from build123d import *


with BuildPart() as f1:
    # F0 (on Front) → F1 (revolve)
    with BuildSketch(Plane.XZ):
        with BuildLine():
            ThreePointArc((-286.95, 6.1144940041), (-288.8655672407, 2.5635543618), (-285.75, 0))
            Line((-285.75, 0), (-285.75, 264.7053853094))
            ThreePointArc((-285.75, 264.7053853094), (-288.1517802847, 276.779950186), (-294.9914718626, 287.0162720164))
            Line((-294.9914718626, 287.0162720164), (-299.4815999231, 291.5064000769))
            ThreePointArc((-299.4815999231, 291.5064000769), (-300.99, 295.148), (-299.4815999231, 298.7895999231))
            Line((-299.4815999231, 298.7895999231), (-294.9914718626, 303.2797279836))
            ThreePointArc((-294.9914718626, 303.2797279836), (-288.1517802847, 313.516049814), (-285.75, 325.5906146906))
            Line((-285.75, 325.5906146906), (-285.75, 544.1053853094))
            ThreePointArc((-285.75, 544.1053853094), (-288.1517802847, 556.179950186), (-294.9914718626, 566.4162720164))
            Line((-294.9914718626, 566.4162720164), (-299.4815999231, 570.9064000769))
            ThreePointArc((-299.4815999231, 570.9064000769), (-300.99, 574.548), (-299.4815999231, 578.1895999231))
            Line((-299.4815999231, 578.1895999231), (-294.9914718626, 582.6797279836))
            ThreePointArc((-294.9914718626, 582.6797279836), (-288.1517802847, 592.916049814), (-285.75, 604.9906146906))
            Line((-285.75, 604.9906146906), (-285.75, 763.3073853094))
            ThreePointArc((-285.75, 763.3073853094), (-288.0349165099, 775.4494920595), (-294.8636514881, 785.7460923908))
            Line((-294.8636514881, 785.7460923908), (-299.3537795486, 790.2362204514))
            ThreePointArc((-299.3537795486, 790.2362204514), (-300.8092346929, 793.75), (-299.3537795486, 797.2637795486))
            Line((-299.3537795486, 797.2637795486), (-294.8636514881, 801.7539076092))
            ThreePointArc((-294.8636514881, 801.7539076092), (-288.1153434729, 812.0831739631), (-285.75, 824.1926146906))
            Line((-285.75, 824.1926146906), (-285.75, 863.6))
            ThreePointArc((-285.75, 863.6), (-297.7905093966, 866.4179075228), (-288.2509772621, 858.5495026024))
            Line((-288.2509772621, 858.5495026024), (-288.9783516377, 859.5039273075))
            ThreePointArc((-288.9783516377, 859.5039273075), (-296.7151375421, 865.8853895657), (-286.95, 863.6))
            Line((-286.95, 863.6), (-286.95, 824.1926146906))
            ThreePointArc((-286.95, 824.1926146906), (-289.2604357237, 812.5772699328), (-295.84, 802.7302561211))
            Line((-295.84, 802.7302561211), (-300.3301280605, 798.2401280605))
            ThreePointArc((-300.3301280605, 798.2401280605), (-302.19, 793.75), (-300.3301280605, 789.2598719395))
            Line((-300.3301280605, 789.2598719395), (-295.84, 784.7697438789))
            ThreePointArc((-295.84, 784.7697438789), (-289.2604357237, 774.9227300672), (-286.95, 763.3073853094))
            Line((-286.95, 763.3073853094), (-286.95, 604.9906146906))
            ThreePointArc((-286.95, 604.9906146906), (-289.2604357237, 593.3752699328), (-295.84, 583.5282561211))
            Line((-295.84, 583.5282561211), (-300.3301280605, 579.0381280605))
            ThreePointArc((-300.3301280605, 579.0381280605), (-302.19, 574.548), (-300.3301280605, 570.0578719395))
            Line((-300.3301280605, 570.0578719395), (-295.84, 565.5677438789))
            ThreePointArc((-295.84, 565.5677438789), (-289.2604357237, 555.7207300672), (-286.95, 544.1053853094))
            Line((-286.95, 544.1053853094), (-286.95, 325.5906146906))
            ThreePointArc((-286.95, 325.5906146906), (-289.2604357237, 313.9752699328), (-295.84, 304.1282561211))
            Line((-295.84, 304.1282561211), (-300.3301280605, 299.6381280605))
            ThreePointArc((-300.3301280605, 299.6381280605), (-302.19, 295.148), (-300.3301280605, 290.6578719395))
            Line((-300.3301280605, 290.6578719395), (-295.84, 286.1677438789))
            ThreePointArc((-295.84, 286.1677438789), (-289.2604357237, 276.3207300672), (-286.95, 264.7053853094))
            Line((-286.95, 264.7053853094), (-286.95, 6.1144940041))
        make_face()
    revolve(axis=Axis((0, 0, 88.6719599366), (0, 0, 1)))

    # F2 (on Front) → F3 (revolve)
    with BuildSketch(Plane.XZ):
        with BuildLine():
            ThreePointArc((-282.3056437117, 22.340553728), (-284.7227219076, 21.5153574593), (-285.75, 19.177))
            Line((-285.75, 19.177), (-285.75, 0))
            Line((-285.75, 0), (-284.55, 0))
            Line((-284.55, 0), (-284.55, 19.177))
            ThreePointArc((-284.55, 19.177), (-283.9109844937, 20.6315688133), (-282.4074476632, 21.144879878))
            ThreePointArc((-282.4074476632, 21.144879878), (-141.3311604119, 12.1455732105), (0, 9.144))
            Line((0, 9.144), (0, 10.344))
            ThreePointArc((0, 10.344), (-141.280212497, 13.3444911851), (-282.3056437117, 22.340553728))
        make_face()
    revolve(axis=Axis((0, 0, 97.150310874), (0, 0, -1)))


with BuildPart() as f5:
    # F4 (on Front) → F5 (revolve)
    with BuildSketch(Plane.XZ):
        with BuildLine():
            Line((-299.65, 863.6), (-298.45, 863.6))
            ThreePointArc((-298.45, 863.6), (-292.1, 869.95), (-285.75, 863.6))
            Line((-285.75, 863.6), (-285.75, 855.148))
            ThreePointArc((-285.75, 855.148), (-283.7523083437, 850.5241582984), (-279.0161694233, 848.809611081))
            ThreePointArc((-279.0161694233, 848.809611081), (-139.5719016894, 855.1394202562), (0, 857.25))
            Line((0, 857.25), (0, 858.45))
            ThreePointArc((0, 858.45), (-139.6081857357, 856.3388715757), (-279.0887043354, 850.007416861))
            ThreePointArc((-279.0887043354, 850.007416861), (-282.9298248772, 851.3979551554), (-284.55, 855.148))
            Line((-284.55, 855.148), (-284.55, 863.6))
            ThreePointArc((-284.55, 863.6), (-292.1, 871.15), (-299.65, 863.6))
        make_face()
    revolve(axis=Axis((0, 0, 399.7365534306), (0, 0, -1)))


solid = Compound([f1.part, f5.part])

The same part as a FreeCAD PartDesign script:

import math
import FreeCAD as App
import Part
import Sketcher
from FreeCAD import Vector
Q = App.Units.Quantity

doc = App.newDocument("Part")
body = doc.addObject("PartDesign::Body", "Body")

# Sketch on XZ plane
sketch1 = body.newObject("Sketcher::SketchObject", "Sketch")
sketch1.AttachmentSupport = (doc.getObject("XZ_Plane"), [""])
sketch1.MapMode = "FlatFace"
sketch1.addGeometry([
    Part.ArcOfCircle(Part.Circle(Vector(-285.75, 3.175, 0), Vector(0, 0, 1), 3.175), math.radians(112.206929), math.radians(270)),  # 0
    Part.LineSegment(Vector(-285.75, 0, 0), Vector(-285.75, 264.705385, 0)),  # 1
    Part.ArcOfCircle(Part.Circle(Vector(-317.302359, 264.705385, 0), Vector(0, 0, 1), 31.552359), math.radians(0), math.radians(45)),  # 2
    Part.LineSegment(Vector(-294.991472, 287.016272, 0), Vector(-299.4816, 291.5064, 0)),  # 3
    Part.ArcOfCircle(Part.Circle(Vector(-295.84, 295.148, 0), Vector(0, 0, 1), 5.15), math.radians(135), math.radians(225)),  # 4
    Part.LineSegment(Vector(-299.4816, 298.7896, 0), Vector(-294.991472, 303.279728, 0)),  # 5
    Part.ArcOfCircle(Part.Circle(Vector(-317.302359, 325.590615, 0), Vector(0, 0, 1), 31.552359), math.radians(-45), math.radians(0)),  # 6
    Part.LineSegment(Vector(-285.75, 325.590615, 0), Vector(-285.75, 544.105385, 0)),  # 7
    Part.ArcOfCircle(Part.Circle(Vector(-317.302359, 544.105385, 0), Vector(0, 0, 1), 31.552359), math.radians(0), math.radians(45)),  # 8
    Part.LineSegment(Vector(-294.991472, 566.416272, 0), Vector(-299.4816, 570.9064, 0)),  # 9
    Part.ArcOfCircle(Part.Circle(Vector(-295.84, 574.548, 0), Vector(0, 0, 1), 5.15), math.radians(135), math.radians(225)),  # 10
    Part.LineSegment(Vector(-299.4816, 578.1896, 0), Vector(-294.991472, 582.679728, 0)),  # 11
    Part.ArcOfCircle(Part.Circle(Vector(-317.302359, 604.990615, 0), Vector(0, 0, 1), 31.552359), math.radians(-45), math.radians(0)),  # 12
    Part.LineSegment(Vector(-285.75, 604.990615, 0), Vector(-285.75, 763.307385, 0)),  # 13
    Part.ArcOfCircle(Part.Circle(Vector(-316.873099, 763.736645, 0), Vector(0, 0, 1), 31.126059), math.radians(-0.790192), math.radians(45)),  # 14
    Part.LineSegment(Vector(-294.863651, 785.746092, 0), Vector(-299.35378, 790.23622, 0)),  # 15
    Part.ArcOfCircle(Part.Circle(Vector(-295.84, 793.75, 0), Vector(0, 0, 1), 4.969235), math.radians(135), math.radians(225)),  # 16
    Part.LineSegment(Vector(-299.35378, 797.26378, 0), Vector(-294.863651, 801.753908, 0)),  # 17
    Part.ArcOfCircle(Part.Circle(Vector(-317.929979, 824.192615, 0), Vector(0, 0, 1), 32.179979), math.radians(-44.209808), math.radians(0)),  # 18
    Part.LineSegment(Vector(-285.75, 824.192615, 0), Vector(-285.75, 863.6, 0)),  # 19
    Part.ArcOfCircle(Part.Circle(Vector(-292.1, 863.6, 0), Vector(0, 0, 1), 6.35), math.radians(0), math.radians(307.311303)),  # 20
    Part.LineSegment(Vector(-288.250977, 858.549503, 0), Vector(-288.978352, 859.503927, 0)),  # 21
    Part.ArcOfCircle(Part.Circle(Vector(-292.1, 863.6, 0), Vector(0, 0, 1), 5.15), math.radians(0), math.radians(307.311303)),  # 22
    Part.LineSegment(Vector(-286.95, 863.6, 0), Vector(-286.95, 824.192615, 0)),  # 23
    Part.ArcOfCircle(Part.Circle(Vector(-317.302359, 824.192615, 0), Vector(0, 0, 1), 30.352359), math.radians(-45), math.radians(0)),  # 24
    Part.LineSegment(Vector(-295.84, 802.730256, 0), Vector(-300.330128, 798.240128, 0)),  # 25
    Part.ArcOfCircle(Part.Circle(Vector(-295.84, 793.75, 0), Vector(0, 0, 1), 6.35), math.radians(135), math.radians(225)),  # 26
    Part.LineSegment(Vector(-300.330128, 789.259872, 0), Vector(-295.84, 784.769744, 0)),  # 27
    Part.ArcOfCircle(Part.Circle(Vector(-317.302359, 763.307385, 0), Vector(0, 0, 1), 30.352359), math.radians(0), math.radians(45)),  # 28
    Part.LineSegment(Vector(-286.95, 763.307385, 0), Vector(-286.95, 604.990615, 0)),  # 29
    Part.ArcOfCircle(Part.Circle(Vector(-317.302359, 604.990615, 0), Vector(0, 0, 1), 30.352359), math.radians(-45), math.radians(0)),  # 30
    Part.LineSegment(Vector(-295.84, 583.528256, 0), Vector(-300.330128, 579.038128, 0)),  # 31
    Part.ArcOfCircle(Part.Circle(Vector(-295.84, 574.548, 0), Vector(0, 0, 1), 6.35), math.radians(135), math.radians(225)),  # 32
    Part.LineSegment(Vector(-300.330128, 570.057872, 0), Vector(-295.84, 565.567744, 0)),  # 33
    Part.ArcOfCircle(Part.Circle(Vector(-317.302359, 544.105385, 0), Vector(0, 0, 1), 30.352359), math.radians(0), math.radians(45)),  # 34
    Part.LineSegment(Vector(-286.95, 544.105385, 0), Vector(-286.95, 325.590615, 0)),  # 35
    Part.ArcOfCircle(Part.Circle(Vector(-317.302359, 325.590615, 0), Vector(0, 0, 1), 30.352359), math.radians(-45), math.radians(0)),  # 36
    Part.LineSegment(Vector(-295.84, 304.128256, 0), Vector(-300.330128, 299.638128, 0)),  # 37
    Part.ArcOfCircle(Part.Circle(Vector(-295.84, 295.148, 0), Vector(0, 0, 1), 6.35), math.radians(135), math.radians(225)),  # 38
    Part.LineSegment(Vector(-300.330128, 290.657872, 0), Vector(-295.84, 286.167744, 0)),  # 39
    Part.ArcOfCircle(Part.Circle(Vector(-317.302359, 264.705385, 0), Vector(0, 0, 1), 30.352359), math.radians(0), math.radians(45)),  # 40
    Part.LineSegment(Vector(-286.95, 264.705385, 0), Vector(-286.95, 6.114494, 0)),  # 41
], False)
sketch1.addConstraint([
    Sketcher.Constraint("Coincident", 0, 2, 1, 1),
    Sketcher.Constraint("Tangent", 1, 2, 2, 1),
    Sketcher.Constraint("Tangent", 2, 2, 3, 1),
    Sketcher.Constraint("Tangent", 3, 2, 4, 2),
    Sketcher.Constraint("Tangent", 4, 1, 5, 1),
    Sketcher.Constraint("Tangent", 5, 2, 6, 1),
    Sketcher.Constraint("Tangent", 6, 2, 7, 1),
    Sketcher.Constraint("Tangent", 7, 2, 8, 1),
    Sketcher.Constraint("Tangent", 8, 2, 9, 1),
    Sketcher.Constraint("Tangent", 9, 2, 10, 2),
    Sketcher.Constraint("Tangent", 10, 1, 11, 1),
    Sketcher.Constraint("Tangent", 11, 2, 12, 1),
    Sketcher.Constraint("Tangent", 12, 2, 13, 1),
    Sketcher.Constraint("Coincident", 13, 2, 14, 1),
    Sketcher.Constraint("Tangent", 14, 2, 15, 1),
    Sketcher.Constraint("Tangent", 15, 2, 16, 2),
    Sketcher.Constraint("Tangent", 16, 1, 17, 1),
    Sketcher.Constraint("Coincident", 17, 2, 18, 1),
    Sketcher.Constraint("Tangent", 18, 2, 19, 1),
    Sketcher.Constraint("Tangent", 19, 2, 20, 1),
    Sketcher.Constraint("Coincident", 20, 2, 21, 1),
    Sketcher.Constraint("Coincident", 21, 2, 22, 2),
    Sketcher.Constraint("Tangent", 22, 1, 23, 1),
    Sketcher.Constraint("Tangent", 23, 2, 24, 2),
    Sketcher.Constraint("Tangent", 24, 1, 25, 1),
    Sketcher.Constraint("Tangent", 25, 2, 26, 1),
    Sketcher.Constraint("Tangent", 26, 2, 27, 1),
    Sketcher.Constraint("Tangent", 27, 2, 28, 2),
    Sketcher.Constraint("Tangent", 28, 1, 29, 1),
    Sketcher.Constraint("Tangent", 29, 2, 30, 2),
    Sketcher.Constraint("Tangent", 30, 1, 31, 1),
    Sketcher.Constraint("Tangent", 31, 2, 32, 1),
    Sketcher.Constraint("Tangent", 32, 2, 33, 1),
    Sketcher.Constraint("Tangent", 33, 2, 34, 2),
    Sketcher.Constraint("Tangent", 34, 1, 35, 1),
    Sketcher.Constraint("Tangent", 35, 2, 36, 2),
    Sketcher.Constraint("Tangent", 36, 1, 37, 1),
    Sketcher.Constraint("Tangent", 37, 2, 38, 1),
    Sketcher.Constraint("Tangent", 38, 2, 39, 1),
    Sketcher.Constraint("Tangent", 39, 2, 40, 2),
    Sketcher.Constraint("Tangent", 40, 1, 41, 1),
    Sketcher.Constraint("Coincident", 41, 2, 0, 1),
    Sketcher.Constraint("Vertical", 1),
    Sketcher.Constraint("Vertical", 7),
    Sketcher.Constraint("Vertical", 13),
    Sketcher.Constraint("Vertical", 19),
    Sketcher.Constraint("Vertical", 23),
    Sketcher.Constraint("Vertical", 29),
    Sketcher.Constraint("Vertical", 35),
    Sketcher.Constraint("Vertical", 41),
    Sketcher.Constraint("Coincident", 22, 3, 20, 3),
    Sketcher.Constraint("Coincident", 26, 3, 16, 3),
    Sketcher.Constraint("Coincident", 30, 3, 12, 3),
    Sketcher.Constraint("Coincident", 32, 3, 10, 3),
    Sketcher.Constraint("Coincident", 34, 3, 8, 3),
    Sketcher.Constraint("Coincident", 36, 3, 6, 3),
    Sketcher.Constraint("Coincident", 38, 3, 4, 3),
    Sketcher.Constraint("Coincident", 40, 3, 2, 3),
    Sketcher.Constraint("Equal", 2, 6),
    Sketcher.Constraint("Equal", 6, 8),
    Sketcher.Constraint("Equal", 4, 10),
    Sketcher.Constraint("Equal", 8, 12),
    Sketcher.Constraint("Equal", 10, 22),
    Sketcher.Constraint("Equal", 20, 26),
    Sketcher.Constraint("Equal", 24, 28),
    Sketcher.Constraint("Equal", 28, 30),
    Sketcher.Constraint("Equal", 26, 32),
    Sketcher.Constraint("Equal", 30, 34),
    Sketcher.Constraint("Equal", 32, 38),
    Sketcher.Constraint("Equal", 36, 40),
    Sketcher.Constraint("PointOnObject", 0, 2, -1),
    Sketcher.Constraint("Perpendicular", 3, 5),
    Sketcher.Constraint("Perpendicular", 5, 9),
    Sketcher.Constraint("Perpendicular", 9, 11),
    Sketcher.Constraint("Perpendicular", 11, 15),
    Sketcher.Constraint("Perpendicular", 15, 17),
    Sketcher.Constraint("Parallel", 17, 25),
    Sketcher.Constraint("Perpendicular", 25, 27),
    Sketcher.Constraint("Perpendicular", 27, 31),
    Sketcher.Constraint("Horizontal", 18, 3, 24, 3),
    Sketcher.Constraint("Horizontal", 28, 3, 13, 2),
    Sketcher.Constraint("Vertical", 2, 3, 6, 3),
    Sketcher.Constraint("Vertical", 4, 3, 10, 3),
    Sketcher.Constraint("Vertical", 8, 3, 12, 3),
    Sketcher.Constraint("Vertical", 10, 3, 16, 3),
    Sketcher.Constraint("Vertical", 12, 3, 24, 3),
    Sketcher.Constraint("Vertical", 3, 2, 4, 1),
    Sketcher.Constraint("Vertical", 14, 2, 17, 2),
    Sketcher.Constraint("Vertical", 38, 3, 24, 1),
    Sketcher.Constraint("Equal", 11, 15),
    Sketcher.Constraint("Radius", 4, Q("5.15 mm")),
    Sketcher.Constraint("Radius", 20, Q("6.35 mm")),
    Sketcher.Constraint("Radius", 0, Q("3.175 mm")),
    Sketcher.Constraint("DistanceX", 20, 3, -1, 1, Q("292.1 mm")),
    Sketcher.Constraint("DistanceY", -1, 1, 20, 3, Q("863.6 mm")),
    Sketcher.Constraint("DistanceX", 0, 3, -1, 1, Q("285.75 mm")),
    Sketcher.Constraint("DistanceX", 4, 3, -1, 1, Q("295.84 mm")),
    Sketcher.Constraint("DistanceY", -1, 1, 16, 3, Q("793.75 mm")),
    Sketcher.Constraint("Radius", 14, Q("31.126059 mm")),
    Sketcher.Constraint("DistanceY", -1, 1, 4, 3, Q("295.148 mm")),
    Sketcher.Constraint("DistanceY", -1, 1, 10, 3, Q("574.548 mm")),
    Sketcher.Constraint("DistanceX", 21, 2, -1, 1, Q("288.978352 mm")),
    Sketcher.Constraint("DistanceX", 20, 2, -1, 1, Q("288.250977 mm")),
])
revolution = body.newObject("PartDesign::Revolution", "Revolution")
revolution.Profile = sketch1
revolution.ReferenceAxis = (sketch1, ["V_Axis"])
revolution.Angle = 360

# Sketch on XZ plane
sketch2 = body.newObject("Sketcher::SketchObject", "Sketch001")
sketch2.AttachmentSupport = (doc.getObject("XZ_Plane"), [""])
sketch2.MapMode = "FlatFace"
sketch2.addGeometry([
    Part.ArcOfCircle(Part.Circle(Vector(-282.575, 19.177, 0), Vector(0, 0, 1), 3.175), math.radians(85.13337), math.radians(180)),  # 0
    Part.LineSegment(Vector(-285.75, 19.177, 0), Vector(-285.75, 0, 0)),  # 1
    Part.LineSegment(Vector(-285.75, 0, 0), Vector(-284.55, 0, 0)),  # 2
    Part.LineSegment(Vector(-284.55, 0, 0), Vector(-284.55, 19.177, 0)),  # 3
    Part.ArcOfCircle(Part.Circle(Vector(-282.575, 19.177, 0), Vector(0, 0, 1), 1.975), math.radians(85.13337), math.radians(180)),  # 4
    Part.ArcOfCircle(Part.Circle(Vector(0, 3337.982736, 0), Vector(0, 0, 1), 3328.838736), math.radians(-94.86663), math.radians(-90)),  # 5
    Part.LineSegment(Vector(0, 9.144, 0), Vector(0, 10.344, 0)),  # 6
    Part.ArcOfCircle(Part.Circle(Vector(0, 3337.982736, 0), Vector(0, 0, 1), 3327.638736), math.radians(-94.86663), math.radians(-90)),  # 7
], False)
sketch2.addConstraint([
    Sketcher.Constraint("Tangent", 0, 2, 1, 1),
    Sketcher.Constraint("Coincident", 1, 2, 2, 1),
    Sketcher.Constraint("Coincident", 2, 2, 3, 1),
    Sketcher.Constraint("Tangent", 3, 2, 4, 2),
    Sketcher.Constraint("Tangent", 4, 1, 5, 1),
    Sketcher.Constraint("Coincident", 5, 2, 6, 1),
    Sketcher.Constraint("Coincident", 6, 2, 7, 2),
    Sketcher.Constraint("Tangent", 7, 1, 0, 1),
    Sketcher.Constraint("Vertical", 1),
    Sketcher.Constraint("Horizontal", 2),
    Sketcher.Constraint("Vertical", 3),
    Sketcher.Constraint("Vertical", 6),
    Sketcher.Constraint("Coincident", 4, 3, 0, 3),
    Sketcher.Constraint("Coincident", 7, 3, 5, 3),
    Sketcher.Constraint("PointOnObject", 5, 3, -2),
    Sketcher.Constraint("PointOnObject", 1, 2, -1),
    Sketcher.Constraint("PointOnObject", 6, 2, -2),
    Sketcher.Constraint("DistanceX", 2, 1, 2, 2, Q("1.2 mm")),
    Sketcher.Constraint("Radius", 0, Q("3.175 mm")),
    Sketcher.Constraint("DistanceY", 1, 2, 1, 1, Q("19.177 mm")),
    Sketcher.Constraint("DistanceX", 0, 2, -1, 1, Q("285.75 mm")),
    Sketcher.Constraint("Radius", 5, Q("3328.838736 mm")),
])
revolution2 = body.newObject("PartDesign::Revolution", "Revolution001")
revolution2.Profile = sketch2
revolution2.ReferenceAxis = (sketch2, ["V_Axis"])
revolution2.Angle = 360
body2 = doc.addObject("PartDesign::Body", "Body001")

# Sketch on XZ plane
sketch3 = body2.newObject("Sketcher::SketchObject", "Sketch002")
sketch3.AttachmentSupport = (doc.getObject("XZ_Plane001"), [""])
sketch3.MapMode = "FlatFace"
sketch3.addGeometry([
    Part.LineSegment(Vector(-299.65, 863.6, 0), Vector(-298.45, 863.6, 0)),  # 0
    Part.ArcOfCircle(Part.Circle(Vector(-292.1, 863.6, 0), Vector(0, 0, 1), 6.35), math.radians(0), math.radians(180)),  # 1
    Part.LineSegment(Vector(-285.75, 863.6, 0), Vector(-285.75, 855.148, 0)),  # 2
    Part.ArcOfCircle(Part.Circle(Vector(-279.4, 855.148, 0), Vector(0, 0, 1), 6.35), math.radians(180), math.radians(273.465399)),  # 3
    Part.ArcOfCircle(Part.Circle(Vector(0, -3758.725858, 0), Vector(0, 0, 1), 4615.975858), math.radians(90), math.radians(93.465399)),  # 4
    Part.LineSegment(Vector(0, 857.25, 0), Vector(0, 858.45, 0)),  # 5
    Part.ArcOfCircle(Part.Circle(Vector(0, -3758.725858, 0), Vector(0, 0, 1), 4617.175858), math.radians(90), math.radians(93.465399)),  # 6
    Part.ArcOfCircle(Part.Circle(Vector(-279.4, 855.148, 0), Vector(0, 0, 1), 5.15), math.radians(180), math.radians(273.465399)),  # 7
    Part.LineSegment(Vector(-284.55, 855.148, 0), Vector(-284.55, 863.6, 0)),  # 8
    Part.ArcOfCircle(Part.Circle(Vector(-292.1, 863.6, 0), Vector(0, 0, 1), 7.55), math.radians(0), math.radians(180)),  # 9
], False)
sketch3.addConstraint([
    Sketcher.Constraint("Coincident", 0, 2, 1, 2),
    Sketcher.Constraint("Tangent", 1, 1, 2, 1),
    Sketcher.Constraint("Tangent", 2, 2, 3, 1),
    Sketcher.Constraint("Tangent", 3, 2, 4, 2),
    Sketcher.Constraint("Coincident", 4, 1, 5, 1),
    Sketcher.Constraint("Coincident", 5, 2, 6, 1),
    Sketcher.Constraint("Tangent", 6, 2, 7, 2),
    Sketcher.Constraint("Tangent", 7, 1, 8, 1),
    Sketcher.Constraint("Tangent", 8, 2, 9, 1),
    Sketcher.Constraint("Coincident", 9, 2, 0, 1),
    Sketcher.Constraint("Horizontal", 0),
    Sketcher.Constraint("Vertical", 2),
    Sketcher.Constraint("Vertical", 5),
    Sketcher.Constraint("Vertical", 8),
    Sketcher.Constraint("Coincident", 6, 3, 4, 3),
    Sketcher.Constraint("Coincident", 7, 3, 3, 3),
    Sketcher.Constraint("Coincident", 9, 3, 1, 3),
    Sketcher.Constraint("Equal", 1, 3),
    Sketcher.Constraint("PointOnObject", 4, 3, -2),
    Sketcher.Constraint("PointOnObject", 5, 2, -2),
    Sketcher.Constraint("Horizontal", 9, 3, 0, 2),
    Sketcher.Constraint("Radius", 1, Q("6.35 mm")),
    Sketcher.Constraint("Radius", 7, Q("5.15 mm")),
    Sketcher.Constraint("DistanceX", 1, 3, -1, 1, Q("292.1 mm")),
    Sketcher.Constraint("DistanceY", -1, 1, 1, 3, Q("863.6 mm")),
    Sketcher.Constraint("DistanceY", 2, 2, 2, 1, Q("8.452 mm")),
    Sketcher.Constraint("Radius", 6, Q("4617.175858 mm")),
])
revolution3 = body2.newObject("PartDesign::Revolution", "Revolution002")
revolution3.Profile = sketch3
revolution3.ReferenceAxis = (sketch3, ["V_Axis"])
revolution3.Angle = 360

doc.recompute()
